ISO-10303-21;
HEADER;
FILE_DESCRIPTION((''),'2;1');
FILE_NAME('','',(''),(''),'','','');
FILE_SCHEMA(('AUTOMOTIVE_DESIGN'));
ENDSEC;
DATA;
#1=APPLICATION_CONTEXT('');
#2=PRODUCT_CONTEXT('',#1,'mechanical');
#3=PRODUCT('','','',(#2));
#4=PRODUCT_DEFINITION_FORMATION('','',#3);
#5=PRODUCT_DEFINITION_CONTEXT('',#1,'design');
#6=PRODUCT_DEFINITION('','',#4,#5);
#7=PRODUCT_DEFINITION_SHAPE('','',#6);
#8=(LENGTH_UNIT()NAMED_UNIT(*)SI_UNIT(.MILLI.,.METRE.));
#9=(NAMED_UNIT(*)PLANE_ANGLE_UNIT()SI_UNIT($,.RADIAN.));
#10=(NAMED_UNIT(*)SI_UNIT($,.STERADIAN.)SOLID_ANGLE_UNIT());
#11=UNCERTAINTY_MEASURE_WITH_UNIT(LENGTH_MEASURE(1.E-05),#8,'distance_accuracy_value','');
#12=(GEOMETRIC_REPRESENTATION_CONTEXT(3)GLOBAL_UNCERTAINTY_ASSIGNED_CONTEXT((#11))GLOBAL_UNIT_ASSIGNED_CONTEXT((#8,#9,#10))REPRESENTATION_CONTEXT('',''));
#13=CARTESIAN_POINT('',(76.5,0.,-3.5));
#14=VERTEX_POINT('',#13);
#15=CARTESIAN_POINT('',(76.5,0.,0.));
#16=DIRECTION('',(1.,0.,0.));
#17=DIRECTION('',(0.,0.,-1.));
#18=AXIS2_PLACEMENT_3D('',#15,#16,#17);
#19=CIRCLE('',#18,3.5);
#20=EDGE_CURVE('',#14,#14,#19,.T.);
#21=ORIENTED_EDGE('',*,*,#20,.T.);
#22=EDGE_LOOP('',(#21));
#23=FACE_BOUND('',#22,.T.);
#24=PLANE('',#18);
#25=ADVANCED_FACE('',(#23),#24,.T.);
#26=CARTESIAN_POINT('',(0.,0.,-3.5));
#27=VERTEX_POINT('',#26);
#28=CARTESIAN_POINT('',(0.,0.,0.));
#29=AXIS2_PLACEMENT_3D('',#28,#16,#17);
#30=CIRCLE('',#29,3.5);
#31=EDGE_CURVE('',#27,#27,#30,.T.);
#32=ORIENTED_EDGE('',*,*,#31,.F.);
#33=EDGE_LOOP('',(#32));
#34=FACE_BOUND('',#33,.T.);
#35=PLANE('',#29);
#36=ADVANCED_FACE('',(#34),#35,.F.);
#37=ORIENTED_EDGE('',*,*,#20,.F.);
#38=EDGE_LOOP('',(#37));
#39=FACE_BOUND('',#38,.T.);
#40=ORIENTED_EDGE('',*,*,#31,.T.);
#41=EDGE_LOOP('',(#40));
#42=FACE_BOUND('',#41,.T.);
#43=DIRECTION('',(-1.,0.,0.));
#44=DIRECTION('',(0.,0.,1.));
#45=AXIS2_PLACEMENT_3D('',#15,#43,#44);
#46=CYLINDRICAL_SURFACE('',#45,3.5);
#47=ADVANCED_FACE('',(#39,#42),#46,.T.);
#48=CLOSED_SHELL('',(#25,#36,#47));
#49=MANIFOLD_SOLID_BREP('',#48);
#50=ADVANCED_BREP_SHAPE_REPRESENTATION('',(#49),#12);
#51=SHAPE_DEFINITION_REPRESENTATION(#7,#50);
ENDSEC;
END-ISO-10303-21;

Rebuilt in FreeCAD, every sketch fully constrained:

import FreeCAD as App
import Part
import Sketcher

V = App.Vector

doc = App.newDocument("Part")
body = doc.addObject("PartDesign::Body", "Body")

# Sketch on YZ plane
sketch1 = body.newObject("Sketcher::SketchObject", "Sketch")
sketch1.AttachmentSupport = (doc.getObject("YZ_Plane"), [""])
sketch1.MapMode = "FlatFace"
sketch1.addGeometry(Part.Circle(V(0, 0, 0), V(0, 0, 1), 3.5), False)
sketch1.addConstraint(Sketcher.Constraint("Coincident", 0, 3, -1, 1))
sketch1.addConstraint(Sketcher.Constraint("Diameter", 0, 7.0))
pad1 = body.newObject("PartDesign::Pad", "Pad")
pad1.Profile = sketch1
pad1.Length = 76.5

doc.recompute()
